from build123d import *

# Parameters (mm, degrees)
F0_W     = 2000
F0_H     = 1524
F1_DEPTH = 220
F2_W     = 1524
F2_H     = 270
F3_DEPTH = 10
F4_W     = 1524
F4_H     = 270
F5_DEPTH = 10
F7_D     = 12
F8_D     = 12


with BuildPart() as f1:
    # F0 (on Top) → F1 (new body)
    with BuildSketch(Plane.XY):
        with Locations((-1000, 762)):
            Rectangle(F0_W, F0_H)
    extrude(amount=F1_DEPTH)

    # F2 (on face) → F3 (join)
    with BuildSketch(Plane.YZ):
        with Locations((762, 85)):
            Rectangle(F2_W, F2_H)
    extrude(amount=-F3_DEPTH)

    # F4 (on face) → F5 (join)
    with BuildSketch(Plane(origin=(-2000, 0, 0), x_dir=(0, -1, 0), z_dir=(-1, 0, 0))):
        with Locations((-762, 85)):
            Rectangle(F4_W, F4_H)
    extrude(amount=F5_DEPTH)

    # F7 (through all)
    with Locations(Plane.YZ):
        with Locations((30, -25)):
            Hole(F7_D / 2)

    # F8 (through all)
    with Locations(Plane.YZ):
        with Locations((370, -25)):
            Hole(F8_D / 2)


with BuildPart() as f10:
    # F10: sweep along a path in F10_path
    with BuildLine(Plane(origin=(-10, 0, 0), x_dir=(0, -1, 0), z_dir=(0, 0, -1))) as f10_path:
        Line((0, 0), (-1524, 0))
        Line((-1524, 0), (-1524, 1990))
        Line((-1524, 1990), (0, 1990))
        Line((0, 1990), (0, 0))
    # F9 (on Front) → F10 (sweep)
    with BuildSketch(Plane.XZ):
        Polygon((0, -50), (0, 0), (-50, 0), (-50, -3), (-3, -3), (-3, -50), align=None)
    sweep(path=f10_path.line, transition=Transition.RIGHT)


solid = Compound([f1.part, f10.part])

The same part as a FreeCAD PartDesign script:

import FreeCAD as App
import Part
import Sketcher

V = App.Vector
Q = App.Units.Quantity


def add_polygon(sketch, points):
    """Adds a closed chain of lines whose ends are joined by coincident constraints."""
    first, n = sketch.GeometryCount, len(points)
    for a, b in zip(points, points[1:] + points[:1]):
        sketch.addGeometry(Part.LineSegment(App.Vector(*a, 0), App.Vector(*b, 0)), False)
    for i in range(n):
        sketch.addConstraint(Sketcher.Constraint("Coincident", first + i, 2, first + (i + 1) % n, 1))

doc = App.newDocument("Part")
body = doc.addObject("PartDesign::Body", "Body")

sketch1 = doc.addObject("Sketcher::SketchObject", "Sketch")
body.addObject(sketch1)
sketch1.AttachmentSupport = (doc.XY_Plane, [""])
sketch1.MapMode = "FlatFace"
add_polygon(sketch1, [(-2000, 1524), (-2000, 0), (0, 0), (0, 1524)])
sketch1.addConstraint([
    Sketcher.Constraint("Vertical", 0),
    Sketcher.Constraint("Horizontal", 1),
    Sketcher.Constraint("Vertical", 2),
    Sketcher.Constraint("Horizontal", 3),
    Sketcher.Constraint("Coincident", 1, 2, -1, 1),
    Sketcher.Constraint("DistanceX", 1, 1, 1, 2, Q("2000 mm")),
    Sketcher.Constraint("DistanceY", 0, 2, 0, 1, Q("1524 mm")),
])
pad1 = doc.addObject("PartDesign::Pad", "Pad")
body.addObject(pad1)
pad1.Profile = sketch1
pad1.Length = 220

sketch2 = doc.addObject("Sketcher::SketchObject", "Sketch001")
body.addObject(sketch2)
sketch2.AttachmentSupport = (doc.YZ_Plane, [""])
sketch2.MapMode = "FlatFace"
add_polygon(sketch2, [(0, 220), (0, -50), (1524, -50), (1524, 220)])
sketch2.addConstraint([
    Sketcher.Constraint("Vertical", 0),
    Sketcher.Constraint("Horizontal", 1),
    Sketcher.Constraint("Vertical", 2),
    Sketcher.Constraint("Horizontal", 3),
    Sketcher.Constraint("PointOnObject", 0, 2, -2),
    Sketcher.Constraint("DistanceX", 1, 1, 1, 2, Q("1524 mm")),
    Sketcher.Constraint("DistanceY", 0, 2, 0, 1, Q("270 mm")),
    Sketcher.Constraint("DistanceY", 0, 2, -1, 1, Q("50 mm")),
])
pad2 = doc.addObject("PartDesign::Pad", "Pad001")
body.addObject(pad2)
pad2.Profile = sketch2
pad2.Length = 10
pad2.Reversed = True

sketch3 = doc.addObject("Sketcher::SketchObject", "Sketch002")
body.addObject(sketch3)
sketch3.AttachmentSupport = (doc.YZ_Plane, [""])
sketch3.MapMode = "FlatFace"
sketch3.AttachmentOffset = App.Placement(V(0, 0, -2000), App.Rotation())
add_polygon(sketch3, [(1524, 220), (1524, -50), (0, -50), (0, 220)])
sketch3.addConstraint([
    Sketcher.Constraint("Vertical", 0),
    Sketcher.Constraint("Horizontal", 1),
    Sketcher.Constraint("Vertical", 2),
    Sketcher.Constraint("Horizontal", 3),
    Sketcher.Constraint("PointOnObject", 1, 2, -2),
    Sketcher.Constraint("DistanceX", 1, 2, 1, 1, Q("1524 mm")),
    Sketcher.Constraint("DistanceY", 0, 2, 0, 1, Q("270 mm")),
    Sketcher.Constraint("DistanceY", 0, 2, -1, 1, Q("50 mm")),
])
pad3 = doc.addObject("PartDesign::Pad", "Pad002")
body.addObject(pad3)
pad3.Profile = sketch3
pad3.Length = 10
pad3.Reversed = True

sketch4 = doc.addObject("Sketcher::SketchObject", "Sketch003")
body.addObject(sketch4)
sketch4.AttachmentSupport = (doc.YZ_Plane, [""])
sketch4.MapMode = "FlatFace"
sketch4.addGeometry(Part.Circle(V(30, -25, 0), V(0, 0, 1), 6), False)
sketch4.addConstraint([
    Sketcher.Constraint("Diameter", 0, Q("12 mm")),
    Sketcher.Constraint("DistanceX", -1, 1, 0, 3, Q("30 mm")),
    Sketcher.Constraint("DistanceY", 0, 3, -1, 1, Q("25 mm")),
])
doc.recompute()
hole = doc.addObject("PartDesign::Hole", "Hole")
body.addObject(hole)
hole.Profile = sketch4
hole.ThreadType = "None"
hole.Diameter = 12
hole.DepthType = "ThroughAll"

sketch5 = doc.addObject("Sketcher::SketchObject", "Sketch004")
body.addObject(sketch5)
sketch5.AttachmentSupport = (doc.YZ_Plane, [""])
sketch5.MapMode = "FlatFace"
sketch5.addGeometry(Part.Circle(V(370, -25, 0), V(0, 0, 1), 6), False)
sketch5.addConstraint([
    Sketcher.Constraint("Diameter", 0, Q("12 mm")),
    Sketcher.Constraint("DistanceX", -1, 1, 0, 3, Q("370 mm")),
    Sketcher.Constraint("DistanceY", 0, 3, -1, 1, Q("25 mm")),
])
doc.recompute()
hole2 = doc.addObject("PartDesign::Hole", "Hole001")
body.addObject(hole2)
hole2.Profile = sketch5
hole2.ThreadType = "None"
hole2.Diameter = 12
hole2.DepthType = "ThroughAll"
body2 = doc.addObject("PartDesign::Body", "Body001")

sketch6 = doc.addObject("Sketcher::SketchObject", "Sketch005")
body2.addObject(sketch6)
sketch6.AttachmentSupport = (doc.getObject("XZ_Plane001"), [""])
sketch6.MapMode = "FlatFace"
add_polygon(sketch6, [(0, -50), (0, 0), (-50, 0), (-50, -3), (-3, -3), (-3, -50)])
sketch6.addConstraint([
    Sketcher.Constraint("Vertical", 0),
    Sketcher.Constraint("Horizontal", 1),
    Sketcher.Constraint("Vertical", 2),
    Sketcher.Constraint("Horizontal", 3),
    Sketcher.Constraint("Vertical", 4),
    Sketcher.Constraint("Horizontal", 5),
    Sketcher.Constraint("Coincident", 0, 2, -1, 1),
    Sketcher.Constraint("Equal", 1, 0),
    Sketcher.Constraint("Equal", 5, 2),
    Sketcher.Constraint("DistanceX", 1, 2, 1, 1, Q("50 mm")),
    Sketcher.Constraint("DistanceX", 3, 1, 3, 2, Q("47 mm")),
])

sketch7 = doc.addObject("Sketcher::SketchObject", "Sketch006")
body2.addObject(sketch7)
sketch7.AttachmentSupport = (doc.getObject("XY_Plane001"), [""])
sketch7.MapMode = "FlatFace"
add_polygon(sketch7, [(-10, 0), (-10, 1524), (-2000, 1524), (-2000, 0)])
sketch7.addConstraint([
    Sketcher.Constraint("Vertical", 0),
    Sketcher.Constraint("Horizontal", 1),
    Sketcher.Constraint("Vertical", 2),
    Sketcher.Constraint("Horizontal", 3),
    Sketcher.Constraint("PointOnObject", 2, 2, -1),
    Sketcher.Constraint("DistanceX", 1, 2, 1, 1, Q("1990 mm")),
    Sketcher.Constraint("DistanceY", 0, 1, 0, 2, Q("1524 mm")),
    Sketcher.Constraint("DistanceX", 0, 2, -1, 1, Q("10 mm")),
])
doc.recompute()

additivepipe = doc.addObject("PartDesign::AdditivePipe", "AdditivePipe")
body2.addObject(additivepipe)
additivepipe.Profile = sketch6
additivepipe.Spine = (sketch7, ["Edge1", "Edge2", "Edge3", "Edge4"])
additivepipe.Transition = "Right corner"

doc.recompute()
